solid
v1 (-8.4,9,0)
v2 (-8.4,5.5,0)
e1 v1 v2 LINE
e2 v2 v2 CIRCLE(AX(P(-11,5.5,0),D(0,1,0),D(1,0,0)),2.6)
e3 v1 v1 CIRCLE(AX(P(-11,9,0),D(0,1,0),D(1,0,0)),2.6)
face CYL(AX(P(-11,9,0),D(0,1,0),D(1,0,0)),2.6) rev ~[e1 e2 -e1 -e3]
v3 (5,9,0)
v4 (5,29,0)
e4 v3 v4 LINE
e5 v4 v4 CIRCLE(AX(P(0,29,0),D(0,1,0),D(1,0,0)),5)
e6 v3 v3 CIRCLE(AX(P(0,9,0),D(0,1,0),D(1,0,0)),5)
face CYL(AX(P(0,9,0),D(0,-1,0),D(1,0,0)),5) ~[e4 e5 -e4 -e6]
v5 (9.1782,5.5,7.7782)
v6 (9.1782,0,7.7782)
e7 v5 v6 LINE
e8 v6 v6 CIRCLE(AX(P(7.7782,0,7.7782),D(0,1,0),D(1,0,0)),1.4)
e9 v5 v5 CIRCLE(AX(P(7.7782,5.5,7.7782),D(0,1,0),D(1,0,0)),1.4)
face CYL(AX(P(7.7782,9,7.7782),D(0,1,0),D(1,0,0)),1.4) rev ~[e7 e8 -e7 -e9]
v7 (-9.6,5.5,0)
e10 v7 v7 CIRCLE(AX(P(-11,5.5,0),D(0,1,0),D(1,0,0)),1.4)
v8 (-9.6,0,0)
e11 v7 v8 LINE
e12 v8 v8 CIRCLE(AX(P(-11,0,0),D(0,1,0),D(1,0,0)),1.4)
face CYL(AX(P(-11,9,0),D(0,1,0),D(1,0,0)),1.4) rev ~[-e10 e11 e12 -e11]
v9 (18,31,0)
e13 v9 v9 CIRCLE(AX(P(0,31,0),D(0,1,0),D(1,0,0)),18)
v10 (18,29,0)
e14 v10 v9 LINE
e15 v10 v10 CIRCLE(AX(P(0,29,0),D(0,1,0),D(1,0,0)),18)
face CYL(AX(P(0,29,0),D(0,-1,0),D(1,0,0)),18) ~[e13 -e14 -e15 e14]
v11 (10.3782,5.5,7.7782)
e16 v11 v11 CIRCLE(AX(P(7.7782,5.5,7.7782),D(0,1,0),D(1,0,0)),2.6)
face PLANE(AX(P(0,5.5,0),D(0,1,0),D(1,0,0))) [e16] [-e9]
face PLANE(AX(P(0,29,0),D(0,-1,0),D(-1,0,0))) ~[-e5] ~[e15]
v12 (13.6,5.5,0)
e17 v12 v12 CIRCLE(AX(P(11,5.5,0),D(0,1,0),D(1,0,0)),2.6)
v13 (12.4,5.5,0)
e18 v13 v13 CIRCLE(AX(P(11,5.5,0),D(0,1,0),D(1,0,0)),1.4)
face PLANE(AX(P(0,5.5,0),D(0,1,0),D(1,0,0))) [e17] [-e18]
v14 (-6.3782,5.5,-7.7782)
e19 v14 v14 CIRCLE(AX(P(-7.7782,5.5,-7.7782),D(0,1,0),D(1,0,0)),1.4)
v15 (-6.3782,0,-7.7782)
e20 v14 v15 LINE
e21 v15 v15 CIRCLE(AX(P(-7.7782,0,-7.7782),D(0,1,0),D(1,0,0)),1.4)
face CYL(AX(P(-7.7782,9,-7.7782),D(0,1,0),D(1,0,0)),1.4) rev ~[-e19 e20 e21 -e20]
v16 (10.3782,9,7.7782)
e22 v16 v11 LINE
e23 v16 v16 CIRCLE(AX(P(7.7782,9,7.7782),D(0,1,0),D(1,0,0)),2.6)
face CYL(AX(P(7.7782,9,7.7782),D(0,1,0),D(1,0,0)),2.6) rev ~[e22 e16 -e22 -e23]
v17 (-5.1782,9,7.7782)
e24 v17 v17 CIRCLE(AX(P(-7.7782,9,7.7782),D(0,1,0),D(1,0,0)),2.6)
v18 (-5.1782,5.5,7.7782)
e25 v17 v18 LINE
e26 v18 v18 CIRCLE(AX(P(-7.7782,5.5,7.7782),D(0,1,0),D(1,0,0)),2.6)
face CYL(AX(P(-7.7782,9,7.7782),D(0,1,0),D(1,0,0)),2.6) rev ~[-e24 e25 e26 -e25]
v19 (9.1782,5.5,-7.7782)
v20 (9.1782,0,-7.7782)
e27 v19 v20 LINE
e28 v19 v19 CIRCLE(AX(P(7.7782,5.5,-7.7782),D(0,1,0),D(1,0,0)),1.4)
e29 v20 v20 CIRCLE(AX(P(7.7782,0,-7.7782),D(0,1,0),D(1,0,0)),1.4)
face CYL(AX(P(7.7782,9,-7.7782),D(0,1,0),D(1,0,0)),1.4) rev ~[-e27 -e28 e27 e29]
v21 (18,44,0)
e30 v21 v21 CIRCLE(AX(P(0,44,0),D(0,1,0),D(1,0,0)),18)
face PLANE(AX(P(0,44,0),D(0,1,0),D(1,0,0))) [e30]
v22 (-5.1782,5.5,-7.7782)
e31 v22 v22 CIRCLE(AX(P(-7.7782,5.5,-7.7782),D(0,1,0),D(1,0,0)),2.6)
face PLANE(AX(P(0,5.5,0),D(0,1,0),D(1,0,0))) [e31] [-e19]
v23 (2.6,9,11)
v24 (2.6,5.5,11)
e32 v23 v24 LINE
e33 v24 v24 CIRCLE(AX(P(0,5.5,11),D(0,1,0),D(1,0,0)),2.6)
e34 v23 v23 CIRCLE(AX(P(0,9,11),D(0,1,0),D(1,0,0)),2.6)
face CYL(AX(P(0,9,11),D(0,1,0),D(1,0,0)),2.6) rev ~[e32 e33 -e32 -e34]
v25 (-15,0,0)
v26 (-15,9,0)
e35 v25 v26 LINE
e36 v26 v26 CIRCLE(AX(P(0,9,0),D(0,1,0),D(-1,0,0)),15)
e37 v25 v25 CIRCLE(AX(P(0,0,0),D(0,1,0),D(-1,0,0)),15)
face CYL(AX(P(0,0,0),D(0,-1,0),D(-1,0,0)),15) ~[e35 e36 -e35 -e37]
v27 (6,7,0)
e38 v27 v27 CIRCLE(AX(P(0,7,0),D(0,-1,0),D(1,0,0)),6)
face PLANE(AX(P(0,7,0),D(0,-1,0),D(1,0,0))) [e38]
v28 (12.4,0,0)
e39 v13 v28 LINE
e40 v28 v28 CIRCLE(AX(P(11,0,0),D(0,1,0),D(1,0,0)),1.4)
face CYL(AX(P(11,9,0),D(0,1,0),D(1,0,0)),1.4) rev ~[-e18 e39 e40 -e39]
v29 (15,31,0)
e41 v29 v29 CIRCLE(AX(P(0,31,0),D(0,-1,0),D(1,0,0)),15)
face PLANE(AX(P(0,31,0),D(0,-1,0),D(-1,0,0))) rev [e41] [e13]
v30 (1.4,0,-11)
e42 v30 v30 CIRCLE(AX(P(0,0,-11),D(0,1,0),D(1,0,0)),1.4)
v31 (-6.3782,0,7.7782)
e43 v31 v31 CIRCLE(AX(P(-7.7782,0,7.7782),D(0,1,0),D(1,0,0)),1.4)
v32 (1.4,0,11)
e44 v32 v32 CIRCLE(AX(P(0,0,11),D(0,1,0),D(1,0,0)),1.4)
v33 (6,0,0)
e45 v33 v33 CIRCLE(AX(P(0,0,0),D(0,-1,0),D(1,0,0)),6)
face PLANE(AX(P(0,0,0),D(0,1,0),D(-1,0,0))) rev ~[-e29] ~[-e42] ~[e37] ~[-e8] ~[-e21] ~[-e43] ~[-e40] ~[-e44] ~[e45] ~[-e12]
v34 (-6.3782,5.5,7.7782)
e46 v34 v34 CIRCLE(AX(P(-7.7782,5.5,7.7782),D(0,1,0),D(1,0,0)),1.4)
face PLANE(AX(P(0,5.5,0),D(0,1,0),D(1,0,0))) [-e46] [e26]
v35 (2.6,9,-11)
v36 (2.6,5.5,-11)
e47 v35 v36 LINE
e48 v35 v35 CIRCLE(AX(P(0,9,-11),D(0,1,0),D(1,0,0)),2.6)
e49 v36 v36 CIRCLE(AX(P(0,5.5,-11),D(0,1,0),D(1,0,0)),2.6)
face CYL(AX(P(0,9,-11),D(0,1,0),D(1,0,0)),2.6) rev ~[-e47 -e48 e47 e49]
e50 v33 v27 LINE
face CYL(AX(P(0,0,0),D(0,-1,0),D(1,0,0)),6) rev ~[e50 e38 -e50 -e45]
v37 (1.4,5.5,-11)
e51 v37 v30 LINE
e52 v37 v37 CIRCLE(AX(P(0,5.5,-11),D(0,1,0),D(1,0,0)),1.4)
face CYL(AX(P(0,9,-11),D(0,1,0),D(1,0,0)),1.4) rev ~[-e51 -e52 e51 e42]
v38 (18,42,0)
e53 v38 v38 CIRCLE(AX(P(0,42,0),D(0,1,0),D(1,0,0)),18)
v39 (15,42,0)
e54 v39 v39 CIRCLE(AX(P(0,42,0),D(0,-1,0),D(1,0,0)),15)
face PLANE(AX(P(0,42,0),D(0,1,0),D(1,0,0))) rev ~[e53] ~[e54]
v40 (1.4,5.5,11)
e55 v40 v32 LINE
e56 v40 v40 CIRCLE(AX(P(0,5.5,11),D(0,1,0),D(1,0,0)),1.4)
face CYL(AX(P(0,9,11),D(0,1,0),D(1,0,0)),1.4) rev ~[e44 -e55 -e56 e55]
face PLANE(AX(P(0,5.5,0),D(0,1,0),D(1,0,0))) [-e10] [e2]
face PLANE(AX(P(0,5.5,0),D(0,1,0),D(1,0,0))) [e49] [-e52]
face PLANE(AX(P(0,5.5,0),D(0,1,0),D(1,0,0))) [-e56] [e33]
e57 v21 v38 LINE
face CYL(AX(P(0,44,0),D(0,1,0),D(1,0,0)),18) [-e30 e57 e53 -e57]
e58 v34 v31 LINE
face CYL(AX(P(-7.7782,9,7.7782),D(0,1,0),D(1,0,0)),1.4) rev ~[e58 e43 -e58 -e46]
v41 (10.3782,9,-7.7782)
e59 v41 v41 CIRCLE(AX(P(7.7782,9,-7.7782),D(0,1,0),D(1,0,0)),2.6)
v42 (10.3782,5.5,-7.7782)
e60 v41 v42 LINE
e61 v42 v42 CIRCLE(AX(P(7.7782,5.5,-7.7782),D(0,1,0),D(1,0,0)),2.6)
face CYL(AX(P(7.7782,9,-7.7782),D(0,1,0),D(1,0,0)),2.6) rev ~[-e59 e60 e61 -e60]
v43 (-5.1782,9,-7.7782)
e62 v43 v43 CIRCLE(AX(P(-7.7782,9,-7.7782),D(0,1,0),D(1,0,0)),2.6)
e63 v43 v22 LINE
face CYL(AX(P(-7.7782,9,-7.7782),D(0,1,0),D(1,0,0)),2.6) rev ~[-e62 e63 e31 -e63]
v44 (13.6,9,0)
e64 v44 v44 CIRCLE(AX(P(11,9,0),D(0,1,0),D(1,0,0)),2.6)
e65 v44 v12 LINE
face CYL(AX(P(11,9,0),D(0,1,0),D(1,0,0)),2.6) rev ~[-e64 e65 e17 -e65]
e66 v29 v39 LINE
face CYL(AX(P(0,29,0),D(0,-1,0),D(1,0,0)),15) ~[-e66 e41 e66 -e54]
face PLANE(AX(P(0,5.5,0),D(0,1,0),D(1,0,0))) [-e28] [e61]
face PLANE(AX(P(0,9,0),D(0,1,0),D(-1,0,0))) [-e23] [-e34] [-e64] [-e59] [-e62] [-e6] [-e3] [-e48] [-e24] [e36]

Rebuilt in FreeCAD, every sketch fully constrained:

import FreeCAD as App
import Part
import Sketcher
from FreeCAD import Vector

doc = App.newDocument("Part")
body = doc.addObject("PartDesign::Body", "Body")

# Sketch on XZ plane
sketch1 = doc.addObject("Sketcher::SketchObject", "Sketch")
body.addObject(sketch1)
sketch1.AttachmentSupport = (doc.XZ_Plane, [""])
sketch1.MapMode = "FlatFace"
sketch1.addGeometry(Part.Circle(Vector(0, 0, 0), Vector(0, 0, 1), 15), False)
sketch1.addConstraint([
    Sketcher.Constraint("Coincident", 0, 3, -1, 1),
    Sketcher.Constraint("Diameter", 0, 30.0),
])
pad1 = doc.addObject("PartDesign::Pad", "Pad")
body.addObject(pad1)
pad1.Profile = sketch1
pad1.Length = 9
pad1.Reversed = True

# Sketch on XZ plane
sketch2 = doc.addObject("Sketcher::SketchObject", "Sketch001")
body.addObject(sketch2)
sketch2.AttachmentSupport = (doc.XZ_Plane, [""])
sketch2.MapMode = "FlatFace"
sketch2.AttachmentOffset = App.Placement(Vector(0, 0, -9), App.Rotation())
sketch2.addGeometry([
    Part.Circle(Vector(-11, 0, 0), Vector(0, 0, 1), 1.4),  # 0
    Part.Circle(Vector(-7.7782, -7.7782, 0), Vector(0, 0, 1), 1.4),  # 1
    Part.Circle(Vector(-7.7782, 7.7782, 0), Vector(0, 0, 1), 1.4),  # 2
    Part.Circle(Vector(0, 11, 0), Vector(0, 0, 1), 1.4),  # 3
    Part.Circle(Vector(7.7782, 7.7782, 0), Vector(0, 0, 1), 1.4),  # 4
    Part.Circle(Vector(11, 0, 0), Vector(0, 0, 1), 1.4),  # 5
    Part.Circle(Vector(7.7782, -7.7782, 0), Vector(0, 0, 1), 1.4),  # 6
    Part.Circle(Vector(0, -11, 0), Vector(0, 0, 1), 1.4),  # 7
], False)
sketch2.addConstraint([
    Sketcher.Constraint("Equal", 0, 1),
    Sketcher.Constraint("Equal", 1, 2),
    Sketcher.Constraint("Equal", 2, 3),
    Sketcher.Constraint("Equal", 3, 4),
    Sketcher.Constraint("Equal", 4, 5),
    Sketcher.Constraint("Equal", 5, 6),
    Sketcher.Constraint("Equal", 6, 7),
    Sketcher.Constraint("Symmetric", 1, 3, 4, 3, -1, 1),
    Sketcher.Constraint("Symmetric", 0, 3, 5, 3, -1, 1),
    Sketcher.Constraint("Symmetric", 2, 3, 6, 3, -1, 1),
    Sketcher.Constraint("Symmetric", 3, 3, 7, 3, -1, 1),
    Sketcher.Constraint("Symmetric", 2, 3, 4, 3, -2),
    Sketcher.Constraint("PointOnObject", 0, 3, -1),
    Sketcher.Constraint("PointOnObject", 3, 3, -2),
    Sketcher.Constraint("Diameter", 0, 2.8),
    Sketcher.Constraint("DistanceX", 0, 3, 5, 3, 22.0),
    Sketcher.Constraint("DistanceY", -1, 1, 3, 3, 11.0),
    Sketcher.Constraint("DistanceX", 1, 3, -1, 1, 7.7782),
    Sketcher.Constraint("DistanceY", 1, 3, -1, 1, 7.7782),
])
pocket1 = doc.addObject("PartDesign::Pocket", "Pocket")
body.addObject(pocket1)
pocket1.Profile = sketch2
pocket1.Type = "UpToFirst"
pocket1.Reversed = True

# Sketch on XZ plane
sketch3 = doc.addObject("Sketcher::SketchObject", "Sketch002")
body.addObject(sketch3)
sketch3.AttachmentSupport = (doc.XZ_Plane, [""])
sketch3.MapMode = "FlatFace"
sketch3.AttachmentOffset = App.Placement(Vector(0, 0, -9), App.Rotation())
sketch3.addGeometry([
    Part.Circle(Vector(-11, 0, 0), Vector(0, 0, 1), 2.6),  # 0
    Part.Circle(Vector(-7.7782, -7.7782, 0), Vector(0, 0, 1), 2.6),  # 1
    Part.Circle(Vector(-7.7782, -7.7782, 0), Vector(0, 0, 1), 1.4),  # 2
    Part.Circle(Vector(0, -11, 0), Vector(0, 0, 1), 2.6),  # 3
    Part.Circle(Vector(7.7782, -7.7782, 0), Vector(0, 0, 1), 2.6),  # 4
    Part.Circle(Vector(11, 0, 0), Vector(0, 0, 1), 2.6),  # 5
    Part.Circle(Vector(7.7782, 7.7782, 0), Vector(0, 0, 1), 2.6),  # 6
    Part.Circle(Vector(7.7782, 7.7782, 0), Vector(0, 0, 1), 1.4),  # 7
    Part.Circle(Vector(0, 11, 0), Vector(0, 0, 1), 2.6),  # 8
    Part.Circle(Vector(0, 11, 0), Vector(0, 0, 1), 1.4),  # 9
    Part.Circle(Vector(-7.7782, 7.7782, 0), Vector(0, 0, 1), 2.6),  # 10
], False)
sketch3.addConstraint([
    Sketcher.Constraint("Coincident", 2, 3, 1, 3),
    Sketcher.Constraint("Coincident", 7, 3, 6, 3),
    Sketcher.Constraint("Coincident", 9, 3, 8, 3),
    Sketcher.Constraint("Equal", 0, 1),
    Sketcher.Constraint("Equal", 1, 3),
    Sketcher.Constraint("Equal", 3, 4),
    Sketcher.Constraint("Equal", 4, 5),
    Sketcher.Constraint("Equal", 5, 6),
    Sketcher.Constraint("Equal", 2, 7),
    Sketcher.Constraint("Equal", 6, 8),
    Sketcher.Constraint("Equal", 7, 9),
    Sketcher.Constraint("Equal", 8, 10),
    Sketcher.Constraint("Symmetric", 0, 3, 5, 3, -1, 1),
    Sketcher.Constraint("Symmetric", 1, 3, 6, 3, -1, 1),
    Sketcher.Constraint("Symmetric", 3, 3, 8, 3, -1, 1),
    Sketcher.Constraint("Symmetric", 4, 3, 10, 3, -1, 1),
    Sketcher.Constraint("Symmetric", 1, 3, 4, 3, -2),
    Sketcher.Constraint("PointOnObject", 0, 3, -1),
    Sketcher.Constraint("PointOnObject", 3, 3, -2),
    Sketcher.Constraint("Diameter", 0, 5.2),
    Sketcher.Constraint("Diameter", 2, 2.8),
    Sketcher.Constraint("DistanceX", 0, 3, -1, 1, 11.0),
    Sketcher.Constraint("DistanceY", 3, 3, -1, 1, 11.0),
    Sketcher.Constraint("DistanceX", 1, 3, -1, 1, 7.7782),
    Sketcher.Constraint("DistanceY", 1, 3, -1, 1, 7.7782),
])
pocket2 = doc.addObject("PartDesign::Pocket", "Pocket001")
body.addObject(pocket2)
pocket2.Profile = sketch3
pocket2.Length = 3.5
pocket2.Reversed = True

# Sketch on XZ plane
sketch4 = doc.addObject("Sketcher::SketchObject", "Sketch003")
body.addObject(sketch4)
sketch4.AttachmentSupport = (doc.XZ_Plane, [""])
sketch4.MapMode = "FlatFace"
sketch4.addGeometry(Part.Circle(Vector(0, 0, 0), Vector(0, 0, 1), 6), False)
sketch4.addConstraint([
    Sketcher.Constraint("Coincident", 0, 3, -1, 1),
    Sketcher.Constraint("Diameter", 0, 12.0),
])
pocket3 = doc.addObject("PartDesign::Pocket", "Pocket002")
body.addObject(pocket3)
pocket3.Profile = sketch4
pocket3.Length = 7

# Sketch on XZ plane
sketch5 = doc.addObject("Sketcher::SketchObject", "Sketch004")
body.addObject(sketch5)
sketch5.AttachmentSupport = (doc.XZ_Plane, [""])
sketch5.MapMode = "FlatFace"
sketch5.AttachmentOffset = App.Placement(Vector(0, 0, -9), App.Rotation())
sketch5.addGeometry(Part.Circle(Vector(0, 0, 0), Vector(0, 0, 1), 5), False)
sketch5.addConstraint([
    Sketcher.Constraint("Coincident", 0, 3, -1, 1),
    Sketcher.Constraint("Diameter", 0, 10.0),
])
pad2 = doc.addObject("PartDesign::Pad", "Pad001")
body.addObject(pad2)
pad2.Profile = sketch5
pad2.Length = 20
pad2.Reversed = True

# Sketch on XZ plane
sketch6 = doc.addObject("Sketcher::SketchObject", "Sketch005")
body.addObject(sketch6)
sketch6.AttachmentSupport = (doc.XZ_Plane, [""])
sketch6.MapMode = "FlatFace"
sketch6.AttachmentOffset = App.Placement(Vector(0, 0, -29), App.Rotation())
sketch6.addGeometry(Part.Circle(Vector(0, 0, 0), Vector(0, 0, 1), 15), False)
sketch6.addConstraint([
    Sketcher.Constraint("Coincident", 0, 3, -1, 1),
    Sketcher.Constraint("Diameter", 0, 30.0),
])
pad3 = doc.addObject("PartDesign::Pad", "Pad002")
body.addObject(pad3)
pad3.Profile = sketch6
pad3.Length = 15
pad3.Reversed = True

# Sketch on XZ plane
sketch7 = doc.addObject("Sketcher::SketchObject", "Sketch006")
body.addObject(sketch7)
sketch7.AttachmentSupport = (doc.XZ_Plane, [""])
sketch7.MapMode = "FlatFace"
sketch7.AttachmentOffset = App.Placement(Vector(0, 0, -44), App.Rotation())
sketch7.addGeometry([
    Part.Circle(Vector(0, 0, 0), Vector(0, 0, 1), 18),
    Part.Circle(Vector(0, 0, 0), Vector(0, 0, 1), 5),
], False)
sketch7.addConstraint([
    Sketcher.Constraint("Coincident", 0, 3, -1, 1),
    Sketcher.Constraint("Coincident", 1, 3, -1, 1),
    Sketcher.Constraint("Diameter", 0, 36.0),
    Sketcher.Constraint("Diameter", 1, 10.0),
])
pad4 = doc.addObject("PartDesign::Pad", "Pad003")
body.addObject(pad4)
pad4.Profile = sketch7
pad4.Length = 2
doc.recompute()

datumplane = doc.addObject("PartDesign::Plane", "DatumPlane")
body.addObject(datumplane)
datumplane.AttachmentSupport = (doc.XZ_Plane, [""])
datumplane.MapMode = "FlatFace"
datumplane.AttachmentOffset = App.Placement(Vector(0, 0, -36.5), App.Rotation())
mirrored = doc.addObject("PartDesign::Mirrored", "Mirrored")
body.addObject(mirrored)
mirrored.Originals = [pad4]
mirrored.MirrorPlane = (datumplane, [""])
body.Tip = mirrored

doc.recompute()
